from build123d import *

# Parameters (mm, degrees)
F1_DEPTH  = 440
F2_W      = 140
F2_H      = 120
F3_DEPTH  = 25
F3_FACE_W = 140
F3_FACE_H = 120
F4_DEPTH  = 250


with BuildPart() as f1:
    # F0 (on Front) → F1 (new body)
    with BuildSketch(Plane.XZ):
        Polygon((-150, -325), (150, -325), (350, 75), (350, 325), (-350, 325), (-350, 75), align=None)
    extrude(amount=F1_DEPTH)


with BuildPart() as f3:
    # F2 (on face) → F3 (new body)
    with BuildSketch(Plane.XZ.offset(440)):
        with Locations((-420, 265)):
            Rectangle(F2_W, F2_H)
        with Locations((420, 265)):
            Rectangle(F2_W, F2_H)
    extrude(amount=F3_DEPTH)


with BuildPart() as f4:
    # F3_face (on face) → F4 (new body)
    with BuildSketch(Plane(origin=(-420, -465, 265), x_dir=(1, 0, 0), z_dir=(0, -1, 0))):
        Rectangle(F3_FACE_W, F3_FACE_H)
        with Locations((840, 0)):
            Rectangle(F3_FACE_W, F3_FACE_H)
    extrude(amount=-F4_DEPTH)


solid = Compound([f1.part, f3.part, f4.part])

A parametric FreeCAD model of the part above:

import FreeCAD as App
import Part
import Sketcher
from FreeCAD import Vector

doc = App.newDocument("Part")
body = doc.addObject("PartDesign::Body", "Body")

# Sketch on XZ plane
sketch1 = body.newObject("Sketcher::SketchObject", "Sketch")
sketch1.AttachmentSupport = (doc.getObject("XZ_Plane"), [""])
sketch1.MapMode = "FlatFace"
sketch1.addGeometry([
    Part.LineSegment(Vector(-150, -325, 0), Vector(150, -325, 0)),  # 0
    Part.LineSegment(Vector(150, -325, 0), Vector(350, 75, 0)),  # 1
    Part.LineSegment(Vector(350, 75, 0), Vector(350, 325, 0)),  # 2
    Part.LineSegment(Vector(350, 325, 0), Vector(-350, 325, 0)),  # 3
    Part.LineSegment(Vector(-350, 325, 0), Vector(-350, 75, 0)),  # 4
    Part.LineSegment(Vector(-350, 75, 0), Vector(-150, -325, 0)),  # 5
], False)
sketch1.addConstraint([
    Sketcher.Constraint("Coincident", 0, 2, 1, 1),
    Sketcher.Constraint("Coincident", 1, 2, 2, 1),
    Sketcher.Constraint("Coincident", 2, 2, 3, 1),
    Sketcher.Constraint("Coincident", 3, 2, 4, 1),
    Sketcher.Constraint("Coincident", 4, 2, 5, 1),
    Sketcher.Constraint("Coincident", 5, 2, 0, 1),
    Sketcher.Constraint("Horizontal", 0),
    Sketcher.Constraint("Vertical", 2),
    Sketcher.Constraint("Horizontal", 3),
    Sketcher.Constraint("Vertical", 4),
    Sketcher.Constraint("Symmetric", 1, 2, 4, 2, -2),
    Sketcher.Constraint("Equal", 1, 5),
    Sketcher.Constraint("DistanceX", 0, 1, 0, 2, 300.0),
    Sketcher.Constraint("DistanceX", 3, 2, 3, 1, 700.0),
    Sketcher.Constraint("DistanceY", 2, 1, 2, 2, 250.0),
    Sketcher.Constraint("DistanceY", 0, 2, -1, 1, 325.0),
    Sketcher.Constraint("DistanceY", -1, 1, 1, 2, 75.0),
])
pad1 = body.newObject("PartDesign::Pad", "Pad")
pad1.Profile = sketch1
pad1.Length = 440
body2 = doc.addObject("PartDesign::Body", "Body001")
body2.AllowCompound = True

# Sketch on XZ plane
sketch2 = body2.newObject("Sketcher::SketchObject", "Sketch001")
sketch2.AttachmentSupport = (doc.getObject("XZ_Plane001"), [""])
sketch2.MapMode = "FlatFace"
sketch2.AttachmentOffset = App.Placement(Vector(0, 0, 440), App.Rotation())
sketch2.addGeometry([
    Part.LineSegment(Vector(-490, 325, 0), Vector(-490, 205, 0)),  # 0
    Part.LineSegment(Vector(-490, 205, 0), Vector(-350, 205, 0)),  # 1
    Part.LineSegment(Vector(-350, 205, 0), Vector(-350, 325, 0)),  # 2
    Part.LineSegment(Vector(-350, 325, 0), Vector(-490, 325, 0)),  # 3
    Part.LineSegment(Vector(350, 325, 0), Vector(350, 205, 0)),  # 4
    Part.LineSegment(Vector(350, 205, 0), Vector(490, 205, 0)),  # 5
    Part.LineSegment(Vector(490, 205, 0), Vector(490, 325, 0)),  # 6
    Part.LineSegment(Vector(490, 325, 0), Vector(350, 325, 0)),  # 7
], False)
sketch2.addConstraint([
    Sketcher.Constraint("Coincident", 0, 2, 1, 1),
    Sketcher.Constraint("Coincident", 1, 2, 2, 1),
    Sketcher.Constraint("Coincident", 2, 2, 3, 1),
    Sketcher.Constraint("Coincident", 3, 2, 0, 1),
    Sketcher.Constraint("Coincident", 4, 2, 5, 1),
    Sketcher.Constraint("Coincident", 5, 2, 6, 1),
    Sketcher.Constraint("Coincident", 6, 2, 7, 1),
    Sketcher.Constraint("Coincident", 7, 2, 4, 1),
    Sketcher.Constraint("Vertical", 0),
    Sketcher.Constraint("Horizontal", 1),
    Sketcher.Constraint("Vertical", 2),
    Sketcher.Constraint("Horizontal", 3),
    Sketcher.Constraint("Vertical", 4),
    Sketcher.Constraint("Horizontal", 5),
    Sketcher.Constraint("Vertical", 6),
    Sketcher.Constraint("Horizontal", 7),
    Sketcher.Constraint("Symmetric", 1, 2, 4, 2, -2),
    Sketcher.Constraint("Symmetric", 3, 2, 6, 2, -2),
    Sketcher.Constraint("DistanceX", 1, 1, 1, 2, 140.0),
    Sketcher.Constraint("DistanceY", 0, 2, 0, 1, 120.0),
    Sketcher.Constraint("DistanceX", 0, 2, -1, 1, 490.0),
    Sketcher.Constraint("DistanceY", -1, 1, 0, 2, 205.0),
])
pad2 = body2.newObject("PartDesign::Pad", "Pad001")
pad2.Profile = sketch2
pad2.Length = 25
body3 = doc.addObject("PartDesign::Body", "Body002")
body3.AllowCompound = True

# Sketch on XZ plane
sketch3 = body3.newObject("Sketcher::SketchObject", "Sketch002")
sketch3.AttachmentSupport = (doc.getObject("XZ_Plane002"), [""])
sketch3.MapMode = "FlatFace"
sketch3.AttachmentOffset = App.Placement(Vector(0, 0, 465), App.Rotation())
sketch3.addGeometry([
    Part.LineSegment(Vector(-490, 325, 0), Vector(-490, 205, 0)),  # 0
    Part.LineSegment(Vector(-490, 205, 0), Vector(-350, 205, 0)),  # 1
    Part.LineSegment(Vector(-350, 205, 0), Vector(-350, 325, 0)),  # 2
    Part.LineSegment(Vector(-350, 325, 0), Vector(-490, 325, 0)),  # 3
    Part.LineSegment(Vector(350, 325, 0), Vector(350, 205, 0)),  # 4
    Part.LineSegment(Vector(350, 205, 0), Vector(490, 205, 0)),  # 5
    Part.LineSegment(Vector(490, 205, 0), Vector(490, 325, 0)),  # 6
    Part.LineSegment(Vector(490, 325, 0), Vector(350, 325, 0)),  # 7
], False)
sketch3.addConstraint([
    Sketcher.Constraint("Coincident", 0, 2, 1, 1),
    Sketcher.Constraint("Coincident", 1, 2, 2, 1),
    Sketcher.Constraint("Coincident", 2, 2, 3, 1),
    Sketcher.Constraint("Coincident", 3, 2, 0, 1),
    Sketcher.Constraint("Coincident", 4, 2, 5, 1),
    Sketcher.Constraint("Coincident", 5, 2, 6, 1),
    Sketcher.Constraint("Coincident", 6, 2, 7, 1),
    Sketcher.Constraint("Coincident", 7, 2, 4, 1),
    Sketcher.Constraint("Vertical", 0),
    Sketcher.Constraint("Horizontal", 1),
    Sketcher.Constraint("Vertical", 2),
    Sketcher.Constraint("Horizontal", 3),
    Sketcher.Constraint("Vertical", 4),
    Sketcher.Constraint("Horizontal", 5),
    Sketcher.Constraint("Vertical", 6),
    Sketcher.Constraint("Horizontal", 7),
    Sketcher.Constraint("Symmetric", 1, 2, 4, 2, -2),
    Sketcher.Constraint("Symmetric", 3, 2, 6, 2, -2),
    Sketcher.Constraint("DistanceX", 1, 1, 1, 2, 140.0),
    Sketcher.Constraint("DistanceY", 0, 2, 0, 1, 120.0),
    Sketcher.Constraint("DistanceX", 0, 2, -1, 1, 490.0),
    Sketcher.Constraint("DistanceY", -1, 1, 0, 2, 205.0),
])
pad3 = body3.newObject("PartDesign::Pad", "Pad002")
pad3.Profile = sketch3
pad3.Length = 250
pad3.Reversed = True

doc.recompute()
